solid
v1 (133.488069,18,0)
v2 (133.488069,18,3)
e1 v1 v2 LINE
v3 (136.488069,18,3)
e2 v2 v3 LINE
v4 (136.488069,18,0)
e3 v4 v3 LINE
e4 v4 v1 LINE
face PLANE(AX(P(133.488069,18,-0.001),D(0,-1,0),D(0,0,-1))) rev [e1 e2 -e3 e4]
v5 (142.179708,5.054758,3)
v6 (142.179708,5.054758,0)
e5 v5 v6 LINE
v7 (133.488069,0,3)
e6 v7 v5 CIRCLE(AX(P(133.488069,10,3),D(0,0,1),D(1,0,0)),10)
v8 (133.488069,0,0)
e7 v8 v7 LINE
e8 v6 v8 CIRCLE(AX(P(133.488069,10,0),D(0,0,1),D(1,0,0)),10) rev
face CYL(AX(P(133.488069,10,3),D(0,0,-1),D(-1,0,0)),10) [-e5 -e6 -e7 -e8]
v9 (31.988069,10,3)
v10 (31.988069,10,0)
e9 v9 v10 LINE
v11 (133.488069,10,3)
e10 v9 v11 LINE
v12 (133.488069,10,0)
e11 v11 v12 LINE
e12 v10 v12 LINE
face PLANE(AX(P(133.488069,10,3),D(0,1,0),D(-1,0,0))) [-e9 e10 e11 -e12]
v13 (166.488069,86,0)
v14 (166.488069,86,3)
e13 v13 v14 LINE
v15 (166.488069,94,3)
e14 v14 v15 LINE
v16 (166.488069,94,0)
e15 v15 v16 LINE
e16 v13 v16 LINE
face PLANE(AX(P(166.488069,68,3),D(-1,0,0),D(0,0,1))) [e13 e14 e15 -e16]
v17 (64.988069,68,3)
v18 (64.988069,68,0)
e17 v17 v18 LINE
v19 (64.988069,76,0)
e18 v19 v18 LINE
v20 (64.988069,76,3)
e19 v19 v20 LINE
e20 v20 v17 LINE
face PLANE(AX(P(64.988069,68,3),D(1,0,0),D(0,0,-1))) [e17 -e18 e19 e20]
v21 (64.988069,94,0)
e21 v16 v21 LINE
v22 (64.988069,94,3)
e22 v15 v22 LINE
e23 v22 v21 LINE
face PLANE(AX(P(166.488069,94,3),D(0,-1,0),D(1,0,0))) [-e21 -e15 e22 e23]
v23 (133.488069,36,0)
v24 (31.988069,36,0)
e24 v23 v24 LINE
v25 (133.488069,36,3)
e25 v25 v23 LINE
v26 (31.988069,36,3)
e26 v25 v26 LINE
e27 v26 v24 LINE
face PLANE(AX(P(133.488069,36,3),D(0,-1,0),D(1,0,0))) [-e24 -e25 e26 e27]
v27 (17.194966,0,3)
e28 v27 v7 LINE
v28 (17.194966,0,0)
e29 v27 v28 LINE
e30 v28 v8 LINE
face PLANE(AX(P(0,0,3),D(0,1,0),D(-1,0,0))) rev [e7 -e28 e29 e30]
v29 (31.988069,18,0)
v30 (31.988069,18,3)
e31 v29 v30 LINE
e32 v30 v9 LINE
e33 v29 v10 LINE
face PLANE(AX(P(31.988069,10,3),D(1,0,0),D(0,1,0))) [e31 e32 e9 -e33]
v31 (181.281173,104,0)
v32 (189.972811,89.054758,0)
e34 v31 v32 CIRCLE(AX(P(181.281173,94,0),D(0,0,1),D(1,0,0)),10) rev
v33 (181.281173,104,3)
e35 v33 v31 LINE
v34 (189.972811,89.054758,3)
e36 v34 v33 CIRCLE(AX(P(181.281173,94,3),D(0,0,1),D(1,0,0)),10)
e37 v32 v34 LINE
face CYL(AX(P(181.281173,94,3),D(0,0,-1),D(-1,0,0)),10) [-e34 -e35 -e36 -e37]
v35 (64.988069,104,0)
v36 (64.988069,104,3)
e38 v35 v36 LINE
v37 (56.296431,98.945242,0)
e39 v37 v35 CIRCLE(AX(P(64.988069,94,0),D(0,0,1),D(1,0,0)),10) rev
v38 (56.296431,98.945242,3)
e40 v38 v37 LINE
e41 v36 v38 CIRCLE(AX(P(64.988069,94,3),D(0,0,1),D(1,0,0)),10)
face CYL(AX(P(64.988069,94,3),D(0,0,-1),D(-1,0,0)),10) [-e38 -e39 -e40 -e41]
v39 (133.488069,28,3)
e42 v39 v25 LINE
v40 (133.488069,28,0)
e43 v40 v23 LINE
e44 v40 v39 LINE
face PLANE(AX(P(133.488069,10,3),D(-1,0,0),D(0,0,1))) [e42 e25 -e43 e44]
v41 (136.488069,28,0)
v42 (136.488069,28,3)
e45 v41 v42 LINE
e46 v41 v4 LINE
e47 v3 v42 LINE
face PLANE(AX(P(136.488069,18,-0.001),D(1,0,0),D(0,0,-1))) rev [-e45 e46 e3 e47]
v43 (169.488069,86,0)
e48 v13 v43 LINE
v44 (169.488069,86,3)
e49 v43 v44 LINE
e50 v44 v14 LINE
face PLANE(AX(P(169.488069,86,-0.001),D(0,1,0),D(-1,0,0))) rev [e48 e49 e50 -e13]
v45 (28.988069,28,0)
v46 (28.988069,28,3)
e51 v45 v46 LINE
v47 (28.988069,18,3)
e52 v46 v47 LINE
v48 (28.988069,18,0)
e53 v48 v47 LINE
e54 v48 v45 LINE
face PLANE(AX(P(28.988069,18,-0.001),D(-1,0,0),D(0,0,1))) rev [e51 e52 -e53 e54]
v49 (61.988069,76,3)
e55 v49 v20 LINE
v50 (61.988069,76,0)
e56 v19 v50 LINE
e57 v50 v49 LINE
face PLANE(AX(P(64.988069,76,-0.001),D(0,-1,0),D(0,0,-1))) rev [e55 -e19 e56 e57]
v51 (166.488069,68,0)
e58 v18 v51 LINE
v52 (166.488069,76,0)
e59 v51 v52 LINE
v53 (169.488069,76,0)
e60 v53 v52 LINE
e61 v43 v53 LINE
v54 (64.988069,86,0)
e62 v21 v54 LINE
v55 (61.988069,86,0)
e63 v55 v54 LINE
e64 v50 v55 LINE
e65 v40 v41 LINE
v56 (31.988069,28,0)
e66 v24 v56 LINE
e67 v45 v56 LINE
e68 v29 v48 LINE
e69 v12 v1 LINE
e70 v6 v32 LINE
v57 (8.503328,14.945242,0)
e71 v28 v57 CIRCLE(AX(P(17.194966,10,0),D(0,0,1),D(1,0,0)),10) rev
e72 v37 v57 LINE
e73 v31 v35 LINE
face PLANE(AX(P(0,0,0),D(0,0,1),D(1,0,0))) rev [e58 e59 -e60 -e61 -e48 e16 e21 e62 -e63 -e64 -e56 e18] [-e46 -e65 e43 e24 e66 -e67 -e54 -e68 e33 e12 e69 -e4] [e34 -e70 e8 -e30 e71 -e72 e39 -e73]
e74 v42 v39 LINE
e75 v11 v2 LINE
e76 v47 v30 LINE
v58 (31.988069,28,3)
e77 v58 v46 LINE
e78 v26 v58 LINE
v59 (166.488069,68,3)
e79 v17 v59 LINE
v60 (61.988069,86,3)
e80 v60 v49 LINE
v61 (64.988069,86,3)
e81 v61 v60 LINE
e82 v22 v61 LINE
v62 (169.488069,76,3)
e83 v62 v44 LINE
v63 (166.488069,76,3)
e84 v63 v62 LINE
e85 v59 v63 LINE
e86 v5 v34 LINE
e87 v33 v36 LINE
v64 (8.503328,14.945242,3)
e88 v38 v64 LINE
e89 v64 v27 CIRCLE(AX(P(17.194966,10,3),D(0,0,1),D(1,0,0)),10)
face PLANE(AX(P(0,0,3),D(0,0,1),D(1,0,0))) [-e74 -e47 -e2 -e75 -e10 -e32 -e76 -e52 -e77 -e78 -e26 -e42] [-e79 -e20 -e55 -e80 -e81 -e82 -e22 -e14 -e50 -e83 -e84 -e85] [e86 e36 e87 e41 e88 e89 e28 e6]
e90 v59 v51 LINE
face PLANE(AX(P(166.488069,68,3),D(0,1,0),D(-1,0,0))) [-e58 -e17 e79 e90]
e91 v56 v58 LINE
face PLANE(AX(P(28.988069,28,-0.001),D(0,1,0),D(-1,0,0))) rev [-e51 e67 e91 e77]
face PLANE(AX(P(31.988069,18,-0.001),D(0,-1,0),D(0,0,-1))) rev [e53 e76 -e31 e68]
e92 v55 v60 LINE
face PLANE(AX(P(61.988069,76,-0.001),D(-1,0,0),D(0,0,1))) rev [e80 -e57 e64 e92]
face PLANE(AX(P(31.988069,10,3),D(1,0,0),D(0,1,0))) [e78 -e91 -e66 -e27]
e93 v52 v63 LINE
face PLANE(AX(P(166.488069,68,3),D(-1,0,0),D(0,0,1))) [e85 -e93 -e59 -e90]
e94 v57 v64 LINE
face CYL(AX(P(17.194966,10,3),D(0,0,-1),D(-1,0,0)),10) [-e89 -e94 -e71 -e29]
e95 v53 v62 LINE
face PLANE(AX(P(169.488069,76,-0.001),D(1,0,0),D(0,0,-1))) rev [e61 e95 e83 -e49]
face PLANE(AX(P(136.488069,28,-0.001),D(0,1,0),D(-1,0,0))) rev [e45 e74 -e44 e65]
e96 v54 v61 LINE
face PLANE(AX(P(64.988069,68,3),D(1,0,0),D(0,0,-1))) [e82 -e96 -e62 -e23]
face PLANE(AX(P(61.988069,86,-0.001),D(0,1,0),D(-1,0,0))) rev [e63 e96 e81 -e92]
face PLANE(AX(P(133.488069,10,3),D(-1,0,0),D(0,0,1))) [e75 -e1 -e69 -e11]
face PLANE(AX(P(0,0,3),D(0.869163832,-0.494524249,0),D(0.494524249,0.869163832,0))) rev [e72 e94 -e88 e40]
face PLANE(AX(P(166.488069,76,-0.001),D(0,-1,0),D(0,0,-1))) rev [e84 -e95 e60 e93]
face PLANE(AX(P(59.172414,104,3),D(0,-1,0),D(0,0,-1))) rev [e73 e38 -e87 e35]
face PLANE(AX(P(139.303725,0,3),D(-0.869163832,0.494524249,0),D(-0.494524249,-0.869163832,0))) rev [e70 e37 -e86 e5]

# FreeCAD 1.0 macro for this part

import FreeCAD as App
import Part
import Sketcher

V = App.Vector
Q = App.Units.Quantity


def edges_at(feature, points):
    """Names of the edges that pass closest to the given points."""
    edges = feature.Shape.Edges
    near = lambda p: min(range(len(edges)), key=lambda i: edges[i].distToShape(Part.Vertex(*p))[0])
    return sorted({f"Edge{near(p) + 1}" for p in points})


def add_polygon(sketch, points):
    """Adds a closed chain of lines whose ends are joined by coincident constraints."""
    first, n = sketch.GeometryCount, len(points)
    for a, b in zip(points, points[1:] + points[:1]):
        sketch.addGeometry(Part.LineSegment(App.Vector(*a, 0), App.Vector(*b, 0)), False)
    for i in range(n):
        sketch.addConstraint(Sketcher.Constraint("Coincident", first + i, 2, first + (i + 1) % n, 1))

doc = App.newDocument("Part")
body = doc.addObject("PartDesign::Body", "Body")

sketch1 = body.newObject("Sketcher::SketchObject", "Sketch")
sketch1.AttachmentSupport = (doc.getObject("XY_Plane"), [""])
sketch1.MapMode = "FlatFace"
add_polygon(sketch1, [(59.172414, 104), (0, 0), (139.303725, 0), (198.476139, 104)])
add_polygon(sketch1, [(31.988069, 10), (31.988069, 36), (133.488069, 36), (133.488069, 10)])
add_polygon(sketch1, [(64.988069, 68), (64.988069, 94), (166.488069, 94), (166.488069, 68)])
sketch1.addConstraint([
    Sketcher.Constraint("Horizontal", 1),
    Sketcher.Constraint("Horizontal", 3),
    Sketcher.Constraint("Vertical", 4),
    Sketcher.Constraint("Horizontal", 5),
    Sketcher.Constraint("Vertical", 6),
    Sketcher.Constraint("Horizontal", 7),
    Sketcher.Constraint("Vertical", 8),
    Sketcher.Constraint("Horizontal", 9),
    Sketcher.Constraint("Vertical", 10),
    Sketcher.Constraint("Horizontal", 11),
    Sketcher.Constraint("Coincident", 0, 2, -1, 1),
    Sketcher.Constraint("Parallel", 0, 2),
    Sketcher.Constraint("Equal", 7, 9),
    Sketcher.Constraint("Equal", 6, 8),
    Sketcher.Constraint("DistanceY", 4, 1, 4, 2, Q("26 mm")),
    Sketcher.Constraint("DistanceX", 5, 1, 5, 2, Q("101.5 mm")),
    Sketcher.Constraint("DistanceY", -1, 1, 2, 2, Q("104 mm")),
    Sketcher.Constraint("DistanceY", -1, 1, 4, 2, Q("36 mm")),
    Sketcher.Constraint("DistanceY", -1, 1, 8, 2, Q("94 mm")),
    Sketcher.Constraint("DistanceX", 4, 2, 8, 2, Q("33 mm")),
    Sketcher.Constraint("DistanceX", 1, 1, 1, 2, Q("139.303725 mm")),
    Sketcher.Constraint("DistanceX", -1, 1, 2, 2, Q("198.476139 mm")),
    Sketcher.Constraint("DistanceX", -1, 1, 4, 2, Q("31.988069 mm")),
])
pad1 = body.newObject("PartDesign::Pad", "Pad")
pad1.Profile = sketch1
pad1.Length = 3
doc.recompute()

fillet = body.newObject("PartDesign::Fillet", "Fillet")
fillet.Base = (pad1, edges_at(pad1, [
    (0, 0, 1.5),
    (59.172, 104, 1.5),
    (198.476, 104, 1.5),
    (139.304, 0, 1.5),
]))
fillet.Radius = 10

sketch2 = body.newObject("Sketcher::SketchObject", "Sketch001")
sketch2.AttachmentSupport = (doc.getObject("XY_Plane"), [""])
sketch2.MapMode = "FlatFace"
sketch2.AttachmentOffset = App.Placement(V(0, 0, 3), App.Rotation())
add_polygon(sketch2, [(61.988069, 86), (61.988069, 76), (64.988069, 76), (64.988069, 86)])
sketch2.addConstraint([
    Sketcher.Constraint("Vertical", 0),
    Sketcher.Constraint("Horizontal", 1),
    Sketcher.Constraint("Vertical", 2),
    Sketcher.Constraint("Horizontal", 3),
    Sketcher.Constraint("DistanceX", 1, 1, 1, 2, Q("3 mm")),
    Sketcher.Constraint("DistanceY", 0, 2, 0, 1, Q("10 mm")),
    Sketcher.Constraint("DistanceY", -1, 1, 0, 2, Q("76 mm")),
    Sketcher.Constraint("DistanceX", -1, 1, 0, 2, Q("61.988069 mm")),
])
pocket1 = body.newObject("PartDesign::Pocket", "Pocket")
pocket1.Profile = sketch2
pocket1.Type = "UpToFirst"

sketch3 = body.newObject("Sketcher::SketchObject", "Sketch002")
sketch3.AttachmentSupport = (doc.getObject("XY_Plane"), [""])
sketch3.MapMode = "FlatFace"
sketch3.AttachmentOffset = App.Placement(V(0, 0, 3), App.Rotation())
add_polygon(sketch3, [(166.488069, 86), (166.488069, 76), (169.488069, 76), (169.488069, 86)])
sketch3.addConstraint([
    Sketcher.Constraint("Vertical", 0),
    Sketcher.Constraint("Horizontal", 1),
    Sketcher.Constraint("Vertical", 2),
    Sketcher.Constraint("Horizontal", 3),
    Sketcher.Constraint("DistanceX", 1, 1, 1, 2, Q("3 mm")),
    Sketcher.Constraint("DistanceY", 0, 2, 0, 1, Q("10 mm")),
    Sketcher.Constraint("DistanceY", -1, 1, 0, 2, Q("76 mm")),
    Sketcher.Constraint("DistanceX", -1, 1, 0, 2, Q("166.488069 mm")),
])
pocket2 = body.newObject("PartDesign::Pocket", "Pocket001")
pocket2.Profile = sketch3
pocket2.Type = "UpToFirst"

sketch4 = body.newObject("Sketcher::SketchObject", "Sketch003")
sketch4.AttachmentSupport = (doc.getObject("XY_Plane"), [""])
sketch4.MapMode = "FlatFace"
sketch4.AttachmentOffset = App.Placement(V(0, 0, 3), App.Rotation())
add_polygon(sketch4, [(28.988069, 28), (28.988069, 18), (31.988069, 18), (31.988069, 28)])
sketch4.addConstraint([
    Sketcher.Constraint("Vertical", 0),
    Sketcher.Constraint("Horizontal", 1),
    Sketcher.Constraint("Vertical", 2),
    Sketcher.Constraint("Horizontal", 3),
    Sketcher.Constraint("DistanceX", 1, 1, 1, 2, Q("3 mm")),
    Sketcher.Constraint("DistanceY", 0, 2, 0, 1, Q("10 mm")),
    Sketcher.Constraint("DistanceY", -1, 1, 0, 2, Q("18 mm")),
    Sketcher.Constraint("DistanceX", -1, 1, 0, 2, Q("28.988069 mm")),
])
pocket3 = body.newObject("PartDesign::Pocket", "Pocket002")
pocket3.Profile = sketch4
pocket3.Type = "UpToFirst"

sketch5 = body.newObject("Sketcher::SketchObject", "Sketch004")
sketch5.AttachmentSupport = (doc.getObject("XY_Plane"), [""])
sketch5.MapMode = "FlatFace"
sketch5.AttachmentOffset = App.Placement(V(0, 0, 3), App.Rotation())
add_polygon(sketch5, [(133.488069, 28), (133.488069, 18), (136.488069, 18), (136.488069, 28)])
sketch5.addConstraint([
    Sketcher.Constraint("Vertical", 0),
    Sketcher.Constraint("Horizontal", 1),
    Sketcher.Constraint("Vertical", 2),
    Sketcher.Constraint("Horizontal", 3),
    Sketcher.Constraint("DistanceX", 1, 1, 1, 2, Q("3 mm")),
    Sketcher.Constraint("DistanceY", 0, 2, 0, 1, Q("10 mm")),
    Sketcher.Constraint("DistanceY", -1, 1, 0, 2, Q("18 mm")),
    Sketcher.Constraint("DistanceX", -1, 1, 0, 2, Q("133.488069 mm")),
])
pocket4 = body.newObject("PartDesign::Pocket", "Pocket003")
pocket4.Profile = sketch5
pocket4.Type = "UpToFirst"

doc.recompute()
